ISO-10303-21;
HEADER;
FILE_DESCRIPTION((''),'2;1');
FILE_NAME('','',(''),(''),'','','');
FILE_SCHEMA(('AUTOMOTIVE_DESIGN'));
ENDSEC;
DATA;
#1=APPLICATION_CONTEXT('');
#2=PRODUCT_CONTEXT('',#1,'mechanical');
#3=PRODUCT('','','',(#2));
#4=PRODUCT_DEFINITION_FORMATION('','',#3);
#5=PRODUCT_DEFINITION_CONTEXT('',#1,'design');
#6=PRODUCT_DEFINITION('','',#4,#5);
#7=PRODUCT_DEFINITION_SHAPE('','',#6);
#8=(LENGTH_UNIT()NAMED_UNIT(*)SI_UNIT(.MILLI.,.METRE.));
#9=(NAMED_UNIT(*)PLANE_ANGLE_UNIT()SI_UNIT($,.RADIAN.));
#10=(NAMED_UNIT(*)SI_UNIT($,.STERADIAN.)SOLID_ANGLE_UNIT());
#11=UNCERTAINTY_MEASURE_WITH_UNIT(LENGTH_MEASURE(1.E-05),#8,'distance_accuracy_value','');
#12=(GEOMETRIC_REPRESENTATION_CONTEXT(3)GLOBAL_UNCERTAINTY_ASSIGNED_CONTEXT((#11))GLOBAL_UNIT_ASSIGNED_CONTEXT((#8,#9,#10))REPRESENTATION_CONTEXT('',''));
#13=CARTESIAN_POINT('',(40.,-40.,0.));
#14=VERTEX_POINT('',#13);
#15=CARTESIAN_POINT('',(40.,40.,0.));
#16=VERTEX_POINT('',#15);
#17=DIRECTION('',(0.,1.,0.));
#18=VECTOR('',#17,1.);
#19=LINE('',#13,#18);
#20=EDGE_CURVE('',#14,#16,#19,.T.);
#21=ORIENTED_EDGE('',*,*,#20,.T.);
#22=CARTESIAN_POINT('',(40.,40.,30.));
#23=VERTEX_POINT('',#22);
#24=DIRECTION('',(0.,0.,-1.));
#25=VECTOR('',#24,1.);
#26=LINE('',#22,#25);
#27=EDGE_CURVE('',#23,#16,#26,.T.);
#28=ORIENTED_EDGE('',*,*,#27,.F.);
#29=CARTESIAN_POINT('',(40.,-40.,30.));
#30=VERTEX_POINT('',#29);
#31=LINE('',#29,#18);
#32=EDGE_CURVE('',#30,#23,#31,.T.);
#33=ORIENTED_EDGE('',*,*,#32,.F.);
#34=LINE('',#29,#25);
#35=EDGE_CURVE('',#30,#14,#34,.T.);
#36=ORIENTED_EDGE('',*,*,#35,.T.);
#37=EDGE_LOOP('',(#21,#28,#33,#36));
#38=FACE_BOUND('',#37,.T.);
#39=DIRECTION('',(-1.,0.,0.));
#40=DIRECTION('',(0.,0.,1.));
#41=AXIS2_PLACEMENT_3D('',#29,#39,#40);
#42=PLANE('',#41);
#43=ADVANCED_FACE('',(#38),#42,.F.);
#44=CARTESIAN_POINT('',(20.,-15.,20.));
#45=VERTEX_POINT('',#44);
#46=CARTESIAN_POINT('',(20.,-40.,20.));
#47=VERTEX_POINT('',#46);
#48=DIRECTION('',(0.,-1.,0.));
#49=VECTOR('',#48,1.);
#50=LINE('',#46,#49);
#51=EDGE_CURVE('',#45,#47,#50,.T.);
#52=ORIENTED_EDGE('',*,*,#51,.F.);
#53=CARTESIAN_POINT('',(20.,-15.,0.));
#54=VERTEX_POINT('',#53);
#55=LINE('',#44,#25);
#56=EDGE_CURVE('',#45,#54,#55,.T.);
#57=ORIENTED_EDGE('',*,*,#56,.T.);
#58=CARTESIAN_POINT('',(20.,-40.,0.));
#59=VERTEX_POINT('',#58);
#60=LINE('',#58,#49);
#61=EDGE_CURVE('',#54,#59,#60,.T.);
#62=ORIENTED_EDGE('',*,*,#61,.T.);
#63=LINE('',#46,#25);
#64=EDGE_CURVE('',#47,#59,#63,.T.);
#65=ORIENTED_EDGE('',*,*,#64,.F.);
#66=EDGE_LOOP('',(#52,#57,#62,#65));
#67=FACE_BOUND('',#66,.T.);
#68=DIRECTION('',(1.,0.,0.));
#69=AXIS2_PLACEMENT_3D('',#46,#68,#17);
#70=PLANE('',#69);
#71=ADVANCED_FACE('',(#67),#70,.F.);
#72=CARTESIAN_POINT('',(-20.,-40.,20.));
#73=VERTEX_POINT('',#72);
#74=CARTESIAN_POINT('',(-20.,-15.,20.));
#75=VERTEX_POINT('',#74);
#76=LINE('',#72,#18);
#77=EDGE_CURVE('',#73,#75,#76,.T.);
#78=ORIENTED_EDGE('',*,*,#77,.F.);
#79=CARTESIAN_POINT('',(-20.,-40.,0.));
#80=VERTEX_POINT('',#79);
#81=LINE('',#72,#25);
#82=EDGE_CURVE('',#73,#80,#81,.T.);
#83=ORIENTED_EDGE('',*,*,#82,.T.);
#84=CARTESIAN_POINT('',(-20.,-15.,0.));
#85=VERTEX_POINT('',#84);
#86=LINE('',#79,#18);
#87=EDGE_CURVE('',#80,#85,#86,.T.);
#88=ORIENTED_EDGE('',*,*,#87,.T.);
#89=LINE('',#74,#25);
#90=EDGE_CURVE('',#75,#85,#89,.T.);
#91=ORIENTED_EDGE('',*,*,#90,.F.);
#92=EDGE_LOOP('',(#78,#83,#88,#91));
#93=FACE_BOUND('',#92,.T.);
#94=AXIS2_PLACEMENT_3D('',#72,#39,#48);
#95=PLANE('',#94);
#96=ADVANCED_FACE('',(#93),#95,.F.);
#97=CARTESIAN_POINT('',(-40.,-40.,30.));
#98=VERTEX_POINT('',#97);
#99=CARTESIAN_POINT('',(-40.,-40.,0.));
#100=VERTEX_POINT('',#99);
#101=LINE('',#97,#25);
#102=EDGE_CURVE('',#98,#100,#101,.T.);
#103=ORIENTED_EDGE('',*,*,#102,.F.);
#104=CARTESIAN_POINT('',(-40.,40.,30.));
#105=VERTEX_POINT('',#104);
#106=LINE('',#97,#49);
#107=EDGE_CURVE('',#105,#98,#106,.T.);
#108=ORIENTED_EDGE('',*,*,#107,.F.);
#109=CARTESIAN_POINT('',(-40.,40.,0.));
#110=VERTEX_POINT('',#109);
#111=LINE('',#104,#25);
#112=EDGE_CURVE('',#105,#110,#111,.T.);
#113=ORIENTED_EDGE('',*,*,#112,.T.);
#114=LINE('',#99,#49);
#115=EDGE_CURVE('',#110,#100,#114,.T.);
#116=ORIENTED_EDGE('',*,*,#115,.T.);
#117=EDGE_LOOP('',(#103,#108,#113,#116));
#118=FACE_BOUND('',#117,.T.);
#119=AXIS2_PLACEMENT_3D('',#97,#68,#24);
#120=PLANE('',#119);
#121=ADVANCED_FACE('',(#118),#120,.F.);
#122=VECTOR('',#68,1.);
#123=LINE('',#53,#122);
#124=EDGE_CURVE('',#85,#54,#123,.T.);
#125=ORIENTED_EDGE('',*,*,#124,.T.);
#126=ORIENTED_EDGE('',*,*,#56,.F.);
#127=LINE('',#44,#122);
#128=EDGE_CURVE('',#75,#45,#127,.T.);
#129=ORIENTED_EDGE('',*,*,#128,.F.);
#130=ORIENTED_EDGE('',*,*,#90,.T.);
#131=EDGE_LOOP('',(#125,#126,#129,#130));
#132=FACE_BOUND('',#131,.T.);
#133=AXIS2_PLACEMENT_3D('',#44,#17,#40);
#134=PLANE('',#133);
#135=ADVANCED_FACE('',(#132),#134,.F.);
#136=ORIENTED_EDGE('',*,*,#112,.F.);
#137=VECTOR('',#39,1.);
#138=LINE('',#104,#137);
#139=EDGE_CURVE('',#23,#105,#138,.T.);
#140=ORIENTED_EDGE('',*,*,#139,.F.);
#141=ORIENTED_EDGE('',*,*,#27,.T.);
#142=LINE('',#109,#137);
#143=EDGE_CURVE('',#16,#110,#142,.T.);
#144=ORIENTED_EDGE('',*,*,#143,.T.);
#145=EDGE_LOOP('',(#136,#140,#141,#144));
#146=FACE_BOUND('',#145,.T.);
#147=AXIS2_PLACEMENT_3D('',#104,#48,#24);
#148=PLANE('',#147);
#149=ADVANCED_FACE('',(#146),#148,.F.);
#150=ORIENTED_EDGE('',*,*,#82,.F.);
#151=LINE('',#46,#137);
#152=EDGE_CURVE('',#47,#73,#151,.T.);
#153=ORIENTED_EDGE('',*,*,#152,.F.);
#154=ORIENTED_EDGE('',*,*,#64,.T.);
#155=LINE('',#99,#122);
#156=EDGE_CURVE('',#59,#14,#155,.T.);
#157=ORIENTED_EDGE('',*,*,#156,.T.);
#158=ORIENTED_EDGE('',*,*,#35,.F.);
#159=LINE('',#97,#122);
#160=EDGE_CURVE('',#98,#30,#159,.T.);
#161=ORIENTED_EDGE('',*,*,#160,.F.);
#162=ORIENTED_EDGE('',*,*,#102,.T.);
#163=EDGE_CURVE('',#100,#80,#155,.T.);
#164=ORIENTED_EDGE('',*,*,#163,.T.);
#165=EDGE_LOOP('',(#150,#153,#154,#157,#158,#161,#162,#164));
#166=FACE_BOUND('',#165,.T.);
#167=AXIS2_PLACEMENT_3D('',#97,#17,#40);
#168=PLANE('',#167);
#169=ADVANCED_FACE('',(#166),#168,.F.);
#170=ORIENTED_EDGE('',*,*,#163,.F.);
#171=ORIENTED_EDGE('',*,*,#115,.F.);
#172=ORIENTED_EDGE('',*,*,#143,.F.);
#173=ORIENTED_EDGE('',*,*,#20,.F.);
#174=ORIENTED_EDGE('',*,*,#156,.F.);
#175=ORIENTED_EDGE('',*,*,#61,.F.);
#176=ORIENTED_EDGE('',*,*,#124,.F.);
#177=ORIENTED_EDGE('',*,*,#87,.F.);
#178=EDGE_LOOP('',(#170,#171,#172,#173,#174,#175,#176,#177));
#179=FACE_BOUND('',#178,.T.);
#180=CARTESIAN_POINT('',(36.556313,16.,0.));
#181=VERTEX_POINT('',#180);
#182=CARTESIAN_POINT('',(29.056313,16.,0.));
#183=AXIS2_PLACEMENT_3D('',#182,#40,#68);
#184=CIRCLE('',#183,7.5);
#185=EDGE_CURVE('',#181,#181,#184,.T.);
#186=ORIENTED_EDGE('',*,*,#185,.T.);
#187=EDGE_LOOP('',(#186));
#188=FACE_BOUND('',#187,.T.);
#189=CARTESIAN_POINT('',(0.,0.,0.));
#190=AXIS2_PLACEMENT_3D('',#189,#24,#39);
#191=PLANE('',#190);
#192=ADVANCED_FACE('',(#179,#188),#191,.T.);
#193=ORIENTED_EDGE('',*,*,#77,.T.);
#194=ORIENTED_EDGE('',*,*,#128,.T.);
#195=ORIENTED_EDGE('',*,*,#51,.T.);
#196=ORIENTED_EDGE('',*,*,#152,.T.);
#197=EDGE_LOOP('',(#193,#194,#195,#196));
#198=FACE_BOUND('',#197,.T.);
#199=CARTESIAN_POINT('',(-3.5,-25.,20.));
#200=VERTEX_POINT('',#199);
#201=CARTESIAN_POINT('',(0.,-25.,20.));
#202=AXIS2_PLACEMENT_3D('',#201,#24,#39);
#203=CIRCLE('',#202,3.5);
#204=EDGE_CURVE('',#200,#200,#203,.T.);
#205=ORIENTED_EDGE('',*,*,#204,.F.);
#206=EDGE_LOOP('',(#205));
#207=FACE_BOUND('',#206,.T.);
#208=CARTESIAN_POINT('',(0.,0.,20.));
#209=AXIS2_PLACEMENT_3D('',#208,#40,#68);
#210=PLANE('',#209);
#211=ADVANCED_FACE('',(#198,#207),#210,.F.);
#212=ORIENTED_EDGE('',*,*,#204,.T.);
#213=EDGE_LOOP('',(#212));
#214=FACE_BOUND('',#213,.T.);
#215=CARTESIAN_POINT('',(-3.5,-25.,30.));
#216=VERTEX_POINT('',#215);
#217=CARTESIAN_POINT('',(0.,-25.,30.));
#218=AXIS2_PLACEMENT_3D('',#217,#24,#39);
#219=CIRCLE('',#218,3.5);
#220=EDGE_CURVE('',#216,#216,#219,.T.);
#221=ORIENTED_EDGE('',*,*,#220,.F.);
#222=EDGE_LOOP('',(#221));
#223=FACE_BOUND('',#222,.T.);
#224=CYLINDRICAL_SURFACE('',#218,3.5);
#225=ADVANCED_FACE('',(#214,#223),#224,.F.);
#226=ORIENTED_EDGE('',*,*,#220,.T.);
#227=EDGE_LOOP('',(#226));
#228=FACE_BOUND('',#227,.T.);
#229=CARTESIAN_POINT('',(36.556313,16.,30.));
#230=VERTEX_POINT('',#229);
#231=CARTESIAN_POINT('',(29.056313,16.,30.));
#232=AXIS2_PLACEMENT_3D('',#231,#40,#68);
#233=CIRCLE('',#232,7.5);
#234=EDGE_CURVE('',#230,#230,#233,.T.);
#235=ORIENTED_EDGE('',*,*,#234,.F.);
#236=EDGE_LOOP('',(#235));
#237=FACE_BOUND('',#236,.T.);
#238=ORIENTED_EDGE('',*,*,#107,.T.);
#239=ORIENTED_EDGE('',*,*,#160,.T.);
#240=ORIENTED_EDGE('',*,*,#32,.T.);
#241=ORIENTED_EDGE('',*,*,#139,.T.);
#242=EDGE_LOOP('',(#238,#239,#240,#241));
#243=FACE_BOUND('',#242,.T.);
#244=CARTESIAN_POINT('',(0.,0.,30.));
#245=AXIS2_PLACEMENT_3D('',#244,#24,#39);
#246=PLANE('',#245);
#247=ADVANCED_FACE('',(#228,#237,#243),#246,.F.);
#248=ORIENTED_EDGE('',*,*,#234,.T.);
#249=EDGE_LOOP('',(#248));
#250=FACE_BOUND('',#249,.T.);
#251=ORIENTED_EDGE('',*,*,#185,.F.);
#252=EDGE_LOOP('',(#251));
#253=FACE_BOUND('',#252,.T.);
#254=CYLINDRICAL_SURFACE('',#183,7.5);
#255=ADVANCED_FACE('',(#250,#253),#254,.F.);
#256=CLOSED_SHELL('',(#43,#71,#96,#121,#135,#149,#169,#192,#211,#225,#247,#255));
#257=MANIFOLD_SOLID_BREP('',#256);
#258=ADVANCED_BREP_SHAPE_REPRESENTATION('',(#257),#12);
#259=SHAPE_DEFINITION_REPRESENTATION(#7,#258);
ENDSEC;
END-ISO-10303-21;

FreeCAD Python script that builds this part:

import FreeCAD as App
import Part
import Sketcher

V = App.Vector
Q = App.Units.Quantity

doc = App.newDocument("Part")
params = doc.addObject("Spreadsheet::Sheet", "Params")
for row, (alias, value) in enumerate([
    ("sketch1_width", "80 mm"),
    ("pad1_length", "30 mm"),
    ("sketch2_width", "40 mm"),
    ("sketch2_height", "25 mm"),
    ("pocket1_length", "20 mm"),
    ("sketch3_diameter", "7 mm"),
    ("sketch4_diameter", "15 mm"),
], start=1):
    params.set(f"A{row}", alias)
    params.set(f"B{row}", "=" + value)
    params.setAlias(f"B{row}", alias)

body = doc.addObject("PartDesign::Body", "Body")

sketch1 = body.newObject("Sketcher::SketchObject", "Sketch")
sketch1.AttachmentSupport = (doc.getObject("XY_Plane"), [""])
sketch1.MapMode = "FlatFace"
sketch1.addGeometry(Part.LineSegment(V(-40, 40, 0), V(-40, -40, 0)), False)
sketch1.addGeometry(Part.LineSegment(V(-40, -40, 0), V(40, -40, 0)), False)
sketch1.addGeometry(Part.LineSegment(V(40, -40, 0), V(40, 40, 0)), False)
sketch1.addGeometry(Part.LineSegment(V(40, 40, 0), V(-40, 40, 0)), False)
sketch1.addConstraint(Sketcher.Constraint("Coincident", 0, 2, 1, 1))
sketch1.addConstraint(Sketcher.Constraint("Coincident", 1, 2, 2, 1))
sketch1.addConstraint(Sketcher.Constraint("Coincident", 2, 2, 3, 1))
sketch1.addConstraint(Sketcher.Constraint("Coincident", 3, 2, 0, 1))
sketch1.addConstraint(Sketcher.Constraint("Vertical", 0))
sketch1.addConstraint(Sketcher.Constraint("Horizontal", 1))
sketch1.addConstraint(Sketcher.Constraint("Vertical", 2))
sketch1.addConstraint(Sketcher.Constraint("Horizontal", 3))
sketch1.addConstraint(Sketcher.Constraint("Symmetric", 0, 2, 2, 2, -1, 1))
sketch1.addConstraint(Sketcher.Constraint("Equal", 3, 0))
sketch1.addConstraint(Sketcher.Constraint("DistanceX", 1, 1, 1, 2, Q("80 mm")))
sketch1.setExpression("Constraints[10]", "Params.sketch1_width")
pad1 = body.newObject("PartDesign::Pad", "Pad")
pad1.Profile = sketch1
pad1.setExpression("Length", "Params.pad1_length")

sketch2 = body.newObject("Sketcher::SketchObject", "Sketch001")
sketch2.AttachmentSupport = (doc.getObject("XY_Plane"), [""])
sketch2.MapMode = "FlatFace"
sketch2.addGeometry(Part.LineSegment(V(20, -15, 0), V(20, -40, 0)), False)
sketch2.addGeometry(Part.LineSegment(V(20, -40, 0), V(-20, -40, 0)), False)
sketch2.addGeometry(Part.LineSegment(V(-20, -40, 0), V(-20, -15, 0)), False)
sketch2.addGeometry(Part.LineSegment(V(-20, -15, 0), V(20, -15, 0)), False)
sketch2.addConstraint(Sketcher.Constraint("Coincident", 0, 2, 1, 1))
sketch2.addConstraint(Sketcher.Constraint("Coincident", 1, 2, 2, 1))
sketch2.addConstraint(Sketcher.Constraint("Coincident", 2, 2, 3, 1))
sketch2.addConstraint(Sketcher.Constraint("Coincident", 3, 2, 0, 1))
sketch2.addConstraint(Sketcher.Constraint("Vertical", 0))
sketch2.addConstraint(Sketcher.Constraint("Horizontal", 1))
sketch2.addConstraint(Sketcher.Constraint("Vertical", 2))
sketch2.addConstraint(Sketcher.Constraint("Horizontal", 3))
sketch2.addConstraint(Sketcher.Constraint("DistanceX", 1, 2, 1, 1, Q("40 mm")))
sketch2.addConstraint(Sketcher.Constraint("DistanceY", 0, 2, 0, 1, Q("25 mm")))
sketch2.addConstraint(Sketcher.Constraint("DistanceX", -1, 1, 0, 2, Q("20 mm")))
sketch2.addConstraint(Sketcher.Constraint("DistanceY", 0, 2, -1, 1, Q("40 mm")))
sketch2.setExpression("Constraints[8]", "Params.sketch2_width")
sketch2.setExpression("Constraints[9]", "Params.sketch2_height")
pocket1 = body.newObject("PartDesign::Pocket", "Pocket")
pocket1.Profile = sketch2
pocket1.setExpression("Length", "Params.pocket1_length")
pocket1.Reversed = True

sketch3 = body.newObject("Sketcher::SketchObject", "Sketch002")
sketch3.AttachmentSupport = (doc.getObject("XY_Plane"), [""])
sketch3.MapMode = "FlatFace"
sketch3.AttachmentOffset = App.Placement(V(0, 0, 20), App.Rotation())
sketch3.addGeometry(Part.Circle(V(0, -25, 0), V(0, 0, 1), 3.5), False)
sketch3.addConstraint(Sketcher.Constraint("PointOnObject", 0, 3, -2))
sketch3.addConstraint(Sketcher.Constraint("Diameter", 0, Q("7 mm")))
sketch3.addConstraint(Sketcher.Constraint("DistanceY", 0, 3, -1, 1, Q("25 mm")))
sketch3.setExpression("Constraints[1]", "Params.sketch3_diameter")
pocket2 = body.newObject("PartDesign::Pocket", "Pocket001")
pocket2.Profile = sketch3
pocket2.Type = "ThroughAll"
pocket2.Reversed = True

sketch4 = body.newObject("Sketcher::SketchObject", "Sketch003")
sketch4.AttachmentSupport = (doc.getObject("XY_Plane"), [""])
sketch4.MapMode = "FlatFace"
sketch4.AttachmentOffset = App.Placement(V(0, 0, 30), App.Rotation())
sketch4.addGeometry(Part.Circle(V(29.056313, 16, 0), V(0, 0, 1), 7.5), False)
sketch4.addConstraint(Sketcher.Constraint("Diameter", 0, Q("15 mm")))
sketch4.addConstraint(Sketcher.Constraint("DistanceY", -1, 1, 0, 3, Q("16 mm")))
sketch4.addConstraint(Sketcher.Constraint("DistanceX", -1, 1, 0, 3, Q("29.056313 mm")))
sketch4.setExpression("Constraints[0]", "Params.sketch4_diameter")
pocket3 = body.newObject("PartDesign::Pocket", "Pocket002")
pocket3.Profile = sketch4
pocket3.Type = "ThroughAll"

doc.recompute()
